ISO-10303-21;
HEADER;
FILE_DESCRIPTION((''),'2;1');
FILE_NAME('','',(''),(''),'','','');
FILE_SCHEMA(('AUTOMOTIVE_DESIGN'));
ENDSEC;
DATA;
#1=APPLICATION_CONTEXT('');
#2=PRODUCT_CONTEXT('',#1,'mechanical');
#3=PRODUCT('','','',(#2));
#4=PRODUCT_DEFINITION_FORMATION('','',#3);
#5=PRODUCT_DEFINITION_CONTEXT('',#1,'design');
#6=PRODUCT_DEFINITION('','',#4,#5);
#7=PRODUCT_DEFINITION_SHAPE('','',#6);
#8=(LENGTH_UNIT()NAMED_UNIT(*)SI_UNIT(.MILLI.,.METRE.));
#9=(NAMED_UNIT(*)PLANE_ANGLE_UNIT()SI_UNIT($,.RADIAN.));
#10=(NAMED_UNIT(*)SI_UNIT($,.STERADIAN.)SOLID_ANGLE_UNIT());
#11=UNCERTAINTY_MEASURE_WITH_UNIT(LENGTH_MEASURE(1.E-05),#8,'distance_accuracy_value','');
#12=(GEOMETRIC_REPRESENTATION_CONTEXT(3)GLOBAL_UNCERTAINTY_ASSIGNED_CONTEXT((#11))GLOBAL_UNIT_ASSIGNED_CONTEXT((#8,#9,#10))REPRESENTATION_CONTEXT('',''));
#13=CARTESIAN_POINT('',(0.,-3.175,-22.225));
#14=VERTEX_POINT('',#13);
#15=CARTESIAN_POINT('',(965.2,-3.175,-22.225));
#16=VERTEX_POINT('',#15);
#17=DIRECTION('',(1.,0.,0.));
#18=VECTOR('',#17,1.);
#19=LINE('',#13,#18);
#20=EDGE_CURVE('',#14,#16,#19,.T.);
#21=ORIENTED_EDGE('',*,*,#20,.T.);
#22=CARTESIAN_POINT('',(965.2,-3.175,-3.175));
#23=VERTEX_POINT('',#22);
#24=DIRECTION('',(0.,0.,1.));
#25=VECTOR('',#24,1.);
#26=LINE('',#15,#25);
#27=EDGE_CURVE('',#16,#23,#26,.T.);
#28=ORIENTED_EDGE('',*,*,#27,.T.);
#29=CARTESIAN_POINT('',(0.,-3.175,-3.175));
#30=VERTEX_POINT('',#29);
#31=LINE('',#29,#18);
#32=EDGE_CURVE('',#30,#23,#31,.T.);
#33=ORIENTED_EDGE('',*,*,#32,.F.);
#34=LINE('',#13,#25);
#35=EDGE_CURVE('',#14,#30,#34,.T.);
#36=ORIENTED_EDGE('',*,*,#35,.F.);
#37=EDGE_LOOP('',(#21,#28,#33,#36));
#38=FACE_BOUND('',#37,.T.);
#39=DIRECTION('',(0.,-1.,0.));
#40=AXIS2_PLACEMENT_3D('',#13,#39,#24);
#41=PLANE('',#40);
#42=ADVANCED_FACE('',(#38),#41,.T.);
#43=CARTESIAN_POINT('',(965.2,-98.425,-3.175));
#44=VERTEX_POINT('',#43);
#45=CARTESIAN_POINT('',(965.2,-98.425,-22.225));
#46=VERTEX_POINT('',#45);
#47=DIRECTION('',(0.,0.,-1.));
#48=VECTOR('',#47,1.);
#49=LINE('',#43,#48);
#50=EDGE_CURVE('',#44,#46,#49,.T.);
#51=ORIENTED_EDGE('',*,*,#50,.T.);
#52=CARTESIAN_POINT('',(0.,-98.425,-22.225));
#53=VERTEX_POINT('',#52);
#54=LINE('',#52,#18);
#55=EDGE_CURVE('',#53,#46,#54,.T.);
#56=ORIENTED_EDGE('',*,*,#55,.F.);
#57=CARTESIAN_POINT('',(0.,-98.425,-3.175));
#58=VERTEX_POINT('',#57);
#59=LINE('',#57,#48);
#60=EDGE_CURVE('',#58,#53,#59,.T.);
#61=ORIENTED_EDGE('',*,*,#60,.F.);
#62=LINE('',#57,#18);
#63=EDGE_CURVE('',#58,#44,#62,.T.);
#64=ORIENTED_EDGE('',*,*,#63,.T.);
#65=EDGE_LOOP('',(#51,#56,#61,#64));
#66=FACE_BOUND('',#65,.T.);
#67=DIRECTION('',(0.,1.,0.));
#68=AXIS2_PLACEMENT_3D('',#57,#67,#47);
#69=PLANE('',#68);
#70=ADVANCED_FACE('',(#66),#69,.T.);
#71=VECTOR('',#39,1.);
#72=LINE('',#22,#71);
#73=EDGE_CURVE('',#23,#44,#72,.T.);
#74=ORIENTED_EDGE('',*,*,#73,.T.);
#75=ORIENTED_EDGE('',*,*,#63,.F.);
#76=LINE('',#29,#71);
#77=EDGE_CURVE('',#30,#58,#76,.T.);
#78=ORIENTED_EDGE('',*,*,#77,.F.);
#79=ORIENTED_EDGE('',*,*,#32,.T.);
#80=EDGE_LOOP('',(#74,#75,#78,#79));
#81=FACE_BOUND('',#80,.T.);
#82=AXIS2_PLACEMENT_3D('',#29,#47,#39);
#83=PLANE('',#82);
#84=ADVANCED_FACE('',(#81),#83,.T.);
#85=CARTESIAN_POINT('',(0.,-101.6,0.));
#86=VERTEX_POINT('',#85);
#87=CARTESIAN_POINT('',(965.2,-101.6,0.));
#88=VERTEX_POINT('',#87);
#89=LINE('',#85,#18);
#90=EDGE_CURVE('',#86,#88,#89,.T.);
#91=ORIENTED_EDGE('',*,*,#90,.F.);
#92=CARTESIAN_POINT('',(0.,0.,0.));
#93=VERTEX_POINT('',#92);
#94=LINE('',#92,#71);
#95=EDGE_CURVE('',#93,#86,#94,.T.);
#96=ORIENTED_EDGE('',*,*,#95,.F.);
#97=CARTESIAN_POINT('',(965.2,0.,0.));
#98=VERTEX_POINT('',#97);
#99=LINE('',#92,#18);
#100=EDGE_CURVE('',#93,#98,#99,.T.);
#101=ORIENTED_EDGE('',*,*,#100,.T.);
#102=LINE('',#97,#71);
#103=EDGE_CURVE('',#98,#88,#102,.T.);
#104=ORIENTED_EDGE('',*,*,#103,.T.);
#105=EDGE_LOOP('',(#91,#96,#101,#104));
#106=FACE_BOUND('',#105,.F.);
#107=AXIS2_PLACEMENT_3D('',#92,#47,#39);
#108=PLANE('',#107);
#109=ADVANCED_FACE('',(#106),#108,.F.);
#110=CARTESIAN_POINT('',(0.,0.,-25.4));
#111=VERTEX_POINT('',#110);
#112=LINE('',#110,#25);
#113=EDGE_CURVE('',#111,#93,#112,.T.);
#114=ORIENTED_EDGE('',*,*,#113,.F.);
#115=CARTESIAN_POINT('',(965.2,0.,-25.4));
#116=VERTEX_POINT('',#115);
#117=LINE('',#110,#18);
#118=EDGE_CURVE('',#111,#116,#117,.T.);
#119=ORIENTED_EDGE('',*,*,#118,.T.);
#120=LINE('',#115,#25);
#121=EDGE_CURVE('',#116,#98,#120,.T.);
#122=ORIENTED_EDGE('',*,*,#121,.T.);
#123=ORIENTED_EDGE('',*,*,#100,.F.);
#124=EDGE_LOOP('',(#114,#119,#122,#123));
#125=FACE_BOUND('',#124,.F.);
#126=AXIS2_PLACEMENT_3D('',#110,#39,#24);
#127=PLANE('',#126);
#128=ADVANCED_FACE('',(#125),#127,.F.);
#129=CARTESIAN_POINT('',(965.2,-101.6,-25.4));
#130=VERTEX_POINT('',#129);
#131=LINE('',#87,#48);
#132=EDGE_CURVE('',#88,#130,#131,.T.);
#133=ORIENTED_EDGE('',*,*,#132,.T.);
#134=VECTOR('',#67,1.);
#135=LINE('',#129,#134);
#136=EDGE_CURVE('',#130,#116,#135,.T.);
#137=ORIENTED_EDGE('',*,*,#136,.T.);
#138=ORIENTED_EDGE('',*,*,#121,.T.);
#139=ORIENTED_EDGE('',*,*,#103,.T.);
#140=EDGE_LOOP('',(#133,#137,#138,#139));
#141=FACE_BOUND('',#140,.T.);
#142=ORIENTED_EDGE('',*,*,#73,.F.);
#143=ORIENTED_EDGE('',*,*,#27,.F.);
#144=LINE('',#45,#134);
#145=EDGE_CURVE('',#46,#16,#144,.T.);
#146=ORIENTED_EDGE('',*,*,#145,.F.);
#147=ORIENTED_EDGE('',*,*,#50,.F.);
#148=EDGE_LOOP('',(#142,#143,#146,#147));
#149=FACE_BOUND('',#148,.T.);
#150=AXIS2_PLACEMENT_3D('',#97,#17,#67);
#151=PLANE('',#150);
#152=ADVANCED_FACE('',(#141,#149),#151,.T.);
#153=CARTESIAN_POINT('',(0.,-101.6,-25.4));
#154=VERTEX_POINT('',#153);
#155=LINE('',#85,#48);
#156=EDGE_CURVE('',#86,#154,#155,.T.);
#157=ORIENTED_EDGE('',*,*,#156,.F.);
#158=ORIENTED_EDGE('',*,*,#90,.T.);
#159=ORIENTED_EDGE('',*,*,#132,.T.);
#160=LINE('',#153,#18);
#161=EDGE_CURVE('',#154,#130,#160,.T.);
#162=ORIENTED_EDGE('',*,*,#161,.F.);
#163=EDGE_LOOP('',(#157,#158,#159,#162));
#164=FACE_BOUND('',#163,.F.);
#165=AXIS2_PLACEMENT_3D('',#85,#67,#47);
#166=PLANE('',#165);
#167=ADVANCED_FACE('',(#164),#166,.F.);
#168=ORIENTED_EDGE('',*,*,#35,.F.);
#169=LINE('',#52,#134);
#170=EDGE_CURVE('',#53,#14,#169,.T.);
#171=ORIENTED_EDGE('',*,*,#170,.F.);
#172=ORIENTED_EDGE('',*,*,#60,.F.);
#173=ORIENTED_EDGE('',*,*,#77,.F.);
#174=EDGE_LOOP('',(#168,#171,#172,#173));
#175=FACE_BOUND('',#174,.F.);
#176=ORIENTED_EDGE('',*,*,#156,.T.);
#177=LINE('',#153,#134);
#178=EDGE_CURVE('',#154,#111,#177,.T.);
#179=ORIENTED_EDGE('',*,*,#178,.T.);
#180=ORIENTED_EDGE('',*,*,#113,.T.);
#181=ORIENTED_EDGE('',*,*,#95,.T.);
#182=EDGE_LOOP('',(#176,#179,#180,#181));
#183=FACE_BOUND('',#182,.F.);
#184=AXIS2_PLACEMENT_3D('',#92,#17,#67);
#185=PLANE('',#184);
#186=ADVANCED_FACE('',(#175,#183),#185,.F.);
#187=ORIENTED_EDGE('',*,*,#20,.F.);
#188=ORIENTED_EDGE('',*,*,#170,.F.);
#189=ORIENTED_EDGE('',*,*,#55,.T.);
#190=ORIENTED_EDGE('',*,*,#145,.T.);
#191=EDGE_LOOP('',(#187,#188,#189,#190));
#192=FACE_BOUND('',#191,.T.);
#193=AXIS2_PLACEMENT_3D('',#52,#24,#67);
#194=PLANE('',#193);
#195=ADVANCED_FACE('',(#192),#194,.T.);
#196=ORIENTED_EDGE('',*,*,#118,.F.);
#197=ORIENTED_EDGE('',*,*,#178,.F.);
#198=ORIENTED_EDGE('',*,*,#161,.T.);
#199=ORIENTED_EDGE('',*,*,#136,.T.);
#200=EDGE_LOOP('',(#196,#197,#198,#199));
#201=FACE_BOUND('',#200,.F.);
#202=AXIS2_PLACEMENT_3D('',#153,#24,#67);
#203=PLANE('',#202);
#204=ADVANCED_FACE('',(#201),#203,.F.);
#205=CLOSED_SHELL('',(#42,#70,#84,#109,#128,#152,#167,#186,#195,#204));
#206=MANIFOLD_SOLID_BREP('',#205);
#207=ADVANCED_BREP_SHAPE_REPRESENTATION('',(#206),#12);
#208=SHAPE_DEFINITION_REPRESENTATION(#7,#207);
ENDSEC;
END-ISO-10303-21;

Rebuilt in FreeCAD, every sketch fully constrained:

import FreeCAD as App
import Part
import Sketcher
Q = App.Units.Quantity


def add_polygon(sketch, points):
    """Adds a closed chain of lines whose ends are joined by coincident constraints."""
    first, n = sketch.GeometryCount, len(points)
    for a, b in zip(points, points[1:] + points[:1]):
        sketch.addGeometry(Part.LineSegment(App.Vector(*a, 0), App.Vector(*b, 0)), False)
    for i in range(n):
        sketch.addConstraint(Sketcher.Constraint("Coincident", first + i, 2, first + (i + 1) % n, 1))

doc = App.newDocument("Part")
body = doc.addObject("PartDesign::Body", "Body")

# Sketch on YZ plane
sketch1 = body.newObject("Sketcher::SketchObject", "Sketch")
sketch1.AttachmentSupport = (doc.getObject("YZ_Plane"), [""])
sketch1.MapMode = "FlatFace"
add_polygon(sketch1, [(0, -25), (0, 0), (-102, 0), (-102, -25)])  # lines 0-3
add_polygon(sketch1, [(-98, -3), (-3, -3), (-3, -22), (-98, -22)])  # lines 4-7
sketch1.addConstraint([
    Sketcher.Constraint("Vertical", 0),
    Sketcher.Constraint("Horizontal", 1),
    Sketcher.Constraint("Vertical", 2),
    Sketcher.Constraint("Horizontal", 3),
    Sketcher.Constraint("Horizontal", 4),
    Sketcher.Constraint("Vertical", 5),
    Sketcher.Constraint("Horizontal", 6),
    Sketcher.Constraint("Vertical", 7),
    Sketcher.Constraint("Coincident", 0, 2, -1, 1),
    Sketcher.Constraint("DistanceX", 1, 2, 1, 1, Q("4 in")),
    Sketcher.Constraint("DistanceY", 0, 1, 0, 2, Q("1 in")),
    Sketcher.Constraint("DistanceX", 4, 2, -1, 1, Q("0.125 in")),
    Sketcher.Constraint("DistanceY", 4, 2, -1, 1, Q("0.125 in")),
    Sketcher.Constraint("DistanceY", 3, 2, 5, 2, Q("0.125 in")),
    Sketcher.Constraint("DistanceX", 2, 2, 6, 2, Q("0.125 in")),
])
pad1 = body.newObject("PartDesign::Pad", "Pad")
pad1.Profile = sketch1
pad1.Length = Q("38 in")

doc.recompute()
